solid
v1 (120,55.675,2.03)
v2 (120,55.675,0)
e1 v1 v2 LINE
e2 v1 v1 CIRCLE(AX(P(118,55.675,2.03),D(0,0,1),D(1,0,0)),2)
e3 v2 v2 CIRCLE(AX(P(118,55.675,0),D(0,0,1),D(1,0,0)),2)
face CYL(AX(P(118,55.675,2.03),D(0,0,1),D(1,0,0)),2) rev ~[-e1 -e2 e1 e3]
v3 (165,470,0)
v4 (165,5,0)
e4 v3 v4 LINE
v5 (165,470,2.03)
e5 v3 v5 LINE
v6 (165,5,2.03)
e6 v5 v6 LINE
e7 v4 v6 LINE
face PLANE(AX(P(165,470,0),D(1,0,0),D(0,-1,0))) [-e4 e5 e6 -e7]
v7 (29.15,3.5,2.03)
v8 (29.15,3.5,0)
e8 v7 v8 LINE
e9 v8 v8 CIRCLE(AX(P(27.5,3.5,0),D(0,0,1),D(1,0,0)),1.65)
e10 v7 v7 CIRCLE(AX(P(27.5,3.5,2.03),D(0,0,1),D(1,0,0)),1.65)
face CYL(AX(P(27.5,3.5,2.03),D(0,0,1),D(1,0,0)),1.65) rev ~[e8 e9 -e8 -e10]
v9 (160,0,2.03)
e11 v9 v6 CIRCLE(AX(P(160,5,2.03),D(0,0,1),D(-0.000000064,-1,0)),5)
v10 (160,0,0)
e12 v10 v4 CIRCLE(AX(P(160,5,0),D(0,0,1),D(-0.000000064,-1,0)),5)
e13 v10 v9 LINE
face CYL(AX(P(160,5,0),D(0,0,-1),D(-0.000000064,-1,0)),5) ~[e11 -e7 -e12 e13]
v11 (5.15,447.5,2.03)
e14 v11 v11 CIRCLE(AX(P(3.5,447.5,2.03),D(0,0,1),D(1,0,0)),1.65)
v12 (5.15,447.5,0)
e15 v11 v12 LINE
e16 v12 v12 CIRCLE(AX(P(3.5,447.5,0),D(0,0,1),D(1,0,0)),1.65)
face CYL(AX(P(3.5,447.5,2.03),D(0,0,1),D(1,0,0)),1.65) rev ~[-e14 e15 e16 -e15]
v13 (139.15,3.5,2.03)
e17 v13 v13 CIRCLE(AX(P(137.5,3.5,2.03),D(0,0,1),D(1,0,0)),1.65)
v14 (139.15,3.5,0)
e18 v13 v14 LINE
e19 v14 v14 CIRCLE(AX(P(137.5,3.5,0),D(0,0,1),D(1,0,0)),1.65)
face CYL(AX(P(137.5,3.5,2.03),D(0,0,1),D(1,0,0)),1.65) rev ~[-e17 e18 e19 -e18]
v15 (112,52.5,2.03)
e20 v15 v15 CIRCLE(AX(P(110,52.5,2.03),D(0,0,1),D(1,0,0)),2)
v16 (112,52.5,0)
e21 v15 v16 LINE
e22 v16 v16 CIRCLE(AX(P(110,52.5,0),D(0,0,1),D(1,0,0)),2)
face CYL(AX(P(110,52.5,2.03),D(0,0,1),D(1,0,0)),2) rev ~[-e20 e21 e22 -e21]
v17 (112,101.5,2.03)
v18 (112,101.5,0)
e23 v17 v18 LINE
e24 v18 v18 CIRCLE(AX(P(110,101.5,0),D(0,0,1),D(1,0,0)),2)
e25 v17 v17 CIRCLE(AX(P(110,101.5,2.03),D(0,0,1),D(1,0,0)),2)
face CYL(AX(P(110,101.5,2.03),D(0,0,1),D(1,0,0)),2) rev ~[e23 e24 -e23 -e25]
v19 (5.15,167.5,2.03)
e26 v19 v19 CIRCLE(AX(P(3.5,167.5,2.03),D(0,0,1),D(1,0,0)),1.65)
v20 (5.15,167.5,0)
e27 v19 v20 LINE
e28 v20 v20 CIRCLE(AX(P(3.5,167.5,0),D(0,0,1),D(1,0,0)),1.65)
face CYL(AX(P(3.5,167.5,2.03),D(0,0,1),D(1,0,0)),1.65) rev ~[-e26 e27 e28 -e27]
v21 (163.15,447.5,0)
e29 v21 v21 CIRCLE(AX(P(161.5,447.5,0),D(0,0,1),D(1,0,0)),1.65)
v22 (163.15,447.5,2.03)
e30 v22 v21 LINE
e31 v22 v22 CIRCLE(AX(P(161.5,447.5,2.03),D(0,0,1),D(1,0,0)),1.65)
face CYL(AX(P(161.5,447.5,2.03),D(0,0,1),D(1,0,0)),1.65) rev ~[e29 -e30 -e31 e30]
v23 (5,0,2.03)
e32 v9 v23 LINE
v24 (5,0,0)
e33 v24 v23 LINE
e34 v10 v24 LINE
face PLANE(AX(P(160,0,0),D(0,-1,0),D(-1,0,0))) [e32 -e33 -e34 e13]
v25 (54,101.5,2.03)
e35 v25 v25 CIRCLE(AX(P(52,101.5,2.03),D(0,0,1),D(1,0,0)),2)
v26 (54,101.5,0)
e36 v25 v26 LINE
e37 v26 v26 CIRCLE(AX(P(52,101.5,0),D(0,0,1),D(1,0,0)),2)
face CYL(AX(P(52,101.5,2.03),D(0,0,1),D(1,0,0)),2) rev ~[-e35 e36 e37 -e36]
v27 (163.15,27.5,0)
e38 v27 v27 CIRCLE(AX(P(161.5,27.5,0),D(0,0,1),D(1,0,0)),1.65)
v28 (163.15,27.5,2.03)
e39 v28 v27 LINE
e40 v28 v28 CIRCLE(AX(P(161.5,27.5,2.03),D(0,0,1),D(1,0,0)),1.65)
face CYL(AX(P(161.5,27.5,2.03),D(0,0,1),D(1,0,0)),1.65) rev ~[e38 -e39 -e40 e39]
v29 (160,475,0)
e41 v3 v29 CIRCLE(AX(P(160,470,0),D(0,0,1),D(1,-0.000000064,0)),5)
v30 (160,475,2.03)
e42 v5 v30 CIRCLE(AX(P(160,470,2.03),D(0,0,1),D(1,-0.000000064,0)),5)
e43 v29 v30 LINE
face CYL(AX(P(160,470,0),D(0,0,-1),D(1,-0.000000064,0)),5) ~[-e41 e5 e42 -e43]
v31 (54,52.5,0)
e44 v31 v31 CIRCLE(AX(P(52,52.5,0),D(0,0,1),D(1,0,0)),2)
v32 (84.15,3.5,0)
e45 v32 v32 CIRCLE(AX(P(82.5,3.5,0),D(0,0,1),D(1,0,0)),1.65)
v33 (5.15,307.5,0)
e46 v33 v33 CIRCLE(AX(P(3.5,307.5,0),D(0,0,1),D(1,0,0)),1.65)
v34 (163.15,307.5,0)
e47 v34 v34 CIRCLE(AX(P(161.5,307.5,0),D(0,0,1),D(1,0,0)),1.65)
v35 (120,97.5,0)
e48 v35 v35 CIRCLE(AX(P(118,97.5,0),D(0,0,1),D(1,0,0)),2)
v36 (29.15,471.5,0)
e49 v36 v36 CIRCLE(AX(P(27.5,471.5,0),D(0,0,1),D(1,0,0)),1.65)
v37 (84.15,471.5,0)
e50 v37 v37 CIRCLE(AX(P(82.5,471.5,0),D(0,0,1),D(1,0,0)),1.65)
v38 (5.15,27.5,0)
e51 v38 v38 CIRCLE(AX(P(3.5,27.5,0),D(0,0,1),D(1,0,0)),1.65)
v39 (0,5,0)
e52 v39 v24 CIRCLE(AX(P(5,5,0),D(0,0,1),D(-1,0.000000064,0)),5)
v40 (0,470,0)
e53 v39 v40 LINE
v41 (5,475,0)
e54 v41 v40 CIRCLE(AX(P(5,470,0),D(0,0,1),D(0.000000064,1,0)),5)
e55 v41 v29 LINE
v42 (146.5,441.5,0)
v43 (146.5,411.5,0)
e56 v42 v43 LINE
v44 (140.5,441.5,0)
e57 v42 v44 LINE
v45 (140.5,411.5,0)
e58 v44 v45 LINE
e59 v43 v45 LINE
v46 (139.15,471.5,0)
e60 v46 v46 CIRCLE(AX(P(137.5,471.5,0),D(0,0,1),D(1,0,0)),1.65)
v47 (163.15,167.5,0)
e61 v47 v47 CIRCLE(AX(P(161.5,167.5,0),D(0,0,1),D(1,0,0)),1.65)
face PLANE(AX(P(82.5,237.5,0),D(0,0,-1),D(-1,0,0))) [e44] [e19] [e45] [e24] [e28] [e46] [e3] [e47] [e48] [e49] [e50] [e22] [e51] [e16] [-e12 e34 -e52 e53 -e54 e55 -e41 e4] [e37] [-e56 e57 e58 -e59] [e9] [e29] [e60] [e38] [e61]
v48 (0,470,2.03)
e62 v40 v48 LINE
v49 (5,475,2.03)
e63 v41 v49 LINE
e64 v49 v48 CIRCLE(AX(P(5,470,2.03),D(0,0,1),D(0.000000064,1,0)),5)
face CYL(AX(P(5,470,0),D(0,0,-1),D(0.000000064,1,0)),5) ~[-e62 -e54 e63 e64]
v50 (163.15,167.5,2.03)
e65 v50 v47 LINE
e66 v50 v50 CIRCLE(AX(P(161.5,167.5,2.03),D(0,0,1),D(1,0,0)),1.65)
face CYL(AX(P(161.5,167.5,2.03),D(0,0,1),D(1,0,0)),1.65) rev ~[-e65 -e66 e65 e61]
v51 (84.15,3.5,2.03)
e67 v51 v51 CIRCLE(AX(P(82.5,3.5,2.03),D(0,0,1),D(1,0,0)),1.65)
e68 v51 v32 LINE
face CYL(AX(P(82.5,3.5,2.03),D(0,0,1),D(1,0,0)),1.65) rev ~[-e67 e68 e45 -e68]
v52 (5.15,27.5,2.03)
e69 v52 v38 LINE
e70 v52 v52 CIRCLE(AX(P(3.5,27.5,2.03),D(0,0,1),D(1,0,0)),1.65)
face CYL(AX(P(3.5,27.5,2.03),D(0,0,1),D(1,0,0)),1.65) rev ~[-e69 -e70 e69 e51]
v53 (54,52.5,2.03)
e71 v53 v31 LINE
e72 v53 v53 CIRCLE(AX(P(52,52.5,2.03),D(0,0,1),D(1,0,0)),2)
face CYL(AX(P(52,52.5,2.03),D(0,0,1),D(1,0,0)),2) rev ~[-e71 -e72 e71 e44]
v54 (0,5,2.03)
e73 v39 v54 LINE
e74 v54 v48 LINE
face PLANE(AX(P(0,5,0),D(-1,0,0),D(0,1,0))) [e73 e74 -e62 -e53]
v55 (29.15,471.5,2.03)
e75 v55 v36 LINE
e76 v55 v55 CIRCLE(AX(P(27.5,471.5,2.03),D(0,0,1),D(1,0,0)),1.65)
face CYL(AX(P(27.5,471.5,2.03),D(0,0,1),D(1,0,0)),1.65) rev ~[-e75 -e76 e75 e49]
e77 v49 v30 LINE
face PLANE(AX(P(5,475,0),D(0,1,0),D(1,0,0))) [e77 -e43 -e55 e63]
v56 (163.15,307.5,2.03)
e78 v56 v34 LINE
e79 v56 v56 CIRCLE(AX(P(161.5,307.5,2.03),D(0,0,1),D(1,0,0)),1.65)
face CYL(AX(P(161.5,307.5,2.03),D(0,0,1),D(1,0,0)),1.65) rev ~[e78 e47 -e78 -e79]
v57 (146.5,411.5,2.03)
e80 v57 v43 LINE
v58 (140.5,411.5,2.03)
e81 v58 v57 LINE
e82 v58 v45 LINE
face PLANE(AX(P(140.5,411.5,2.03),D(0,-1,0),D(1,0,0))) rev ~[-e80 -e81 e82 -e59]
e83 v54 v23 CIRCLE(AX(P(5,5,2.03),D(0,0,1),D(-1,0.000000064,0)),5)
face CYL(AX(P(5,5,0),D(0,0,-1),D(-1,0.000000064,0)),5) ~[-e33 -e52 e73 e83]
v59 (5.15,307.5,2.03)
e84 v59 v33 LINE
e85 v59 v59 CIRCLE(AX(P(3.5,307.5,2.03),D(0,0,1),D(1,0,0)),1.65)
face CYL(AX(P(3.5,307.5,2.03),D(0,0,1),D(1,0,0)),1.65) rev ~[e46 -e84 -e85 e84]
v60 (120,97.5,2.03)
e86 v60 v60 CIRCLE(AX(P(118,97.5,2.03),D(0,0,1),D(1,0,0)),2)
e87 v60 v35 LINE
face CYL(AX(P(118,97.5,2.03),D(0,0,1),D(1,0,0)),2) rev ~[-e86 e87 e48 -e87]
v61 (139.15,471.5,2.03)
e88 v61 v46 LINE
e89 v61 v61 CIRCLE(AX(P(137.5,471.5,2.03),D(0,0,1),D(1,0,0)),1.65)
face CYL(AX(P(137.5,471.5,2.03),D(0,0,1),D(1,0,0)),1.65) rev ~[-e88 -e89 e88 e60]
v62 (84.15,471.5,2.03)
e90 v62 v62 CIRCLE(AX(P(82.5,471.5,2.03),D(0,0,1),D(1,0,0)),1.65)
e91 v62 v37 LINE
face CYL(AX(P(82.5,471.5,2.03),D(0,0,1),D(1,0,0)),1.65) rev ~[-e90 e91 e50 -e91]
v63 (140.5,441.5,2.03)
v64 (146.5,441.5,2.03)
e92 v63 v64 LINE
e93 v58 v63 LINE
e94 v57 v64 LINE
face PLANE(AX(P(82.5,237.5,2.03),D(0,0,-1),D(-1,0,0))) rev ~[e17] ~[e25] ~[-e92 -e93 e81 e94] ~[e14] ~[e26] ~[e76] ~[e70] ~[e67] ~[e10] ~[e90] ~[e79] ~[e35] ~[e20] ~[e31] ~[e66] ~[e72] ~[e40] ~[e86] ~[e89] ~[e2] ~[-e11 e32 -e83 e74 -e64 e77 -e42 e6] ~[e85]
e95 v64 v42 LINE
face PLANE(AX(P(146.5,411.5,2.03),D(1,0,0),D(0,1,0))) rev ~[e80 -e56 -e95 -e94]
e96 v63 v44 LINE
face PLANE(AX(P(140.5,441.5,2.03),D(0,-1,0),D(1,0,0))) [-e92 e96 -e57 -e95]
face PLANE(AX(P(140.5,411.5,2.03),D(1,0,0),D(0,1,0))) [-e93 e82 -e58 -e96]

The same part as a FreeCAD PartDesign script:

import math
import FreeCAD as App
import Part
import Sketcher


def add_polygon(sketch, points):
    """Adds a closed chain of lines whose ends are joined by coincident constraints."""
    first, n = sketch.GeometryCount, len(points)
    for a, b in zip(points, points[1:] + points[:1]):
        sketch.addGeometry(Part.LineSegment(App.Vector(*a, 0), App.Vector(*b, 0)), False)
    for i in range(n):
        sketch.addConstraint(Sketcher.Constraint("Coincident", first + i, 2, first + (i + 1) % n, 1))

doc = App.newDocument("Part")
body = doc.addObject("PartDesign::Body", "Body")

sketch1 = doc.addObject("Sketcher::SketchObject", "Sketch")
body.addObject(sketch1)
sketch1.AttachmentSupport = (doc.XY_Plane, [""])
sketch1.MapMode = "FlatFace"
sketch1.addGeometry(Part.LineSegment(App.Vector(160, 475, 0), App.Vector(5, 475, 0)), False)
sketch1.addGeometry(Part.ArcOfCircle(Part.Circle(App.Vector(5, 470, 0), App.Vector(0, 0, 1), 5), math.radians(89.999996), math.radians(180.000004)), False)
sketch1.addGeometry(Part.LineSegment(App.Vector(0, 470, 0), App.Vector(0, 5, 0)), False)
sketch1.addGeometry(Part.ArcOfCircle(Part.Circle(App.Vector(5, 5, 0), App.Vector(0, 0, 1), 5), math.radians(179.999996), math.radians(270.000004)), False)
sketch1.addGeometry(Part.LineSegment(App.Vector(5, 0, 0), App.Vector(160, 0, 0)), False)
sketch1.addGeometry(Part.ArcOfCircle(Part.Circle(App.Vector(160, 5, 0), App.Vector(0, 0, 1), 5), math.radians(-90.000004), math.radians(0.000004)), False)
sketch1.addGeometry(Part.LineSegment(App.Vector(165, 5, 0), App.Vector(165, 470, 0)), False)
sketch1.addGeometry(Part.ArcOfCircle(Part.Circle(App.Vector(160, 470, 0), App.Vector(0, 0, 1), 5), math.radians(-0.000004), math.radians(90.000004)), False)
sketch1.addConstraint(Sketcher.Constraint("Tangent", 0, 2, 1, 1))
sketch1.addConstraint(Sketcher.Constraint("Tangent", 1, 2, 2, 1))
sketch1.addConstraint(Sketcher.Constraint("Tangent", 2, 2, 3, 1))
sketch1.addConstraint(Sketcher.Constraint("Tangent", 3, 2, 4, 1))
sketch1.addConstraint(Sketcher.Constraint("Tangent", 4, 2, 5, 1))
sketch1.addConstraint(Sketcher.Constraint("Tangent", 5, 2, 6, 1))
sketch1.addConstraint(Sketcher.Constraint("Tangent", 6, 2, 7, 1))
sketch1.addConstraint(Sketcher.Constraint("Tangent", 7, 2, 0, 1))
sketch1.addConstraint(Sketcher.Constraint("Horizontal", 0))
sketch1.addConstraint(Sketcher.Constraint("Vertical", 2))
sketch1.addConstraint(Sketcher.Constraint("Horizontal", 4))
sketch1.addConstraint(Sketcher.Constraint("Vertical", 6))
sketch1.addConstraint(Sketcher.Constraint("Equal", 1, 3))
sketch1.addConstraint(Sketcher.Constraint("Equal", 3, 5))
sketch1.addConstraint(Sketcher.Constraint("Equal", 5, 7))
sketch1.addConstraint(Sketcher.Constraint("PointOnObject", 1, 2, -2))
sketch1.addConstraint(Sketcher.Constraint("PointOnObject", 3, 2, -1))
sketch1.addConstraint(Sketcher.Constraint("Radius", 1, 5.0))
sketch1.addConstraint(Sketcher.Constraint("DistanceX", 0, 2, 0, 1, 155.0))
sketch1.addConstraint(Sketcher.Constraint("DistanceY", 2, 2, 2, 1, 465.0))
pad1 = doc.addObject("PartDesign::Pad", "Pad")
body.addObject(pad1)
pad1.Profile = sketch1
pad1.Length = 2.03

sketch2 = doc.addObject("Sketcher::SketchObject", "Sketch001")
body.addObject(sketch2)
sketch2.AttachmentSupport = (doc.XY_Plane, [""])
sketch2.MapMode = "FlatFace"
sketch2.AttachmentOffset = App.Placement(App.Vector(0, 0, 2.03), App.Rotation())
sketch2.addGeometry(Part.Circle(App.Vector(137.5, 3.5, 0), App.Vector(0, 0, 1), 1.65), False)
sketch2.addGeometry(Part.Circle(App.Vector(27.5, 3.5, 0), App.Vector(0, 0, 1), 1.65), False)
sketch2.addGeometry(Part.Circle(App.Vector(82.5, 3.5, 0), App.Vector(0, 0, 1), 1.65), False)
sketch2.addGeometry(Part.Circle(App.Vector(3.5, 27.5, 0), App.Vector(0, 0, 1), 1.65), False)
sketch2.addGeometry(Part.Circle(App.Vector(161.5, 27.5, 0), App.Vector(0, 0, 1), 1.65), False)
sketch2.addGeometry(Part.Circle(App.Vector(161.5, 167.5, 0), App.Vector(0, 0, 1), 1.65), False)
sketch2.addGeometry(Part.Circle(App.Vector(161.5, 307.5, 0), App.Vector(0, 0, 1), 1.65), False)
sketch2.addGeometry(Part.Circle(App.Vector(3.5, 307.5, 0), App.Vector(0, 0, 1), 1.65), False)
sketch2.addGeometry(Part.Circle(App.Vector(3.5, 167.5, 0), App.Vector(0, 0, 1), 1.65), False)
sketch2.addGeometry(Part.Circle(App.Vector(3.5, 447.5, 0), App.Vector(0, 0, 1), 1.65), False)
sketch2.addGeometry(Part.Circle(App.Vector(27.5, 471.5, 0), App.Vector(0, 0, 1), 1.65), False)
sketch2.addGeometry(Part.Circle(App.Vector(82.5, 471.5, 0), App.Vector(0, 0, 1), 1.65), False)
sketch2.addGeometry(Part.Circle(App.Vector(137.5, 471.5, 0), App.Vector(0, 0, 1), 1.65), False)
sketch2.addGeometry(Part.Circle(App.Vector(161.5, 447.5, 0), App.Vector(0, 0, 1), 1.65), False)
sketch2.addConstraint(Sketcher.Constraint("Equal", 0, 1))
sketch2.addConstraint(Sketcher.Constraint("Equal", 1, 2))
sketch2.addConstraint(Sketcher.Constraint("Equal", 2, 3))
sketch2.addConstraint(Sketcher.Constraint("Equal", 3, 4))
sketch2.addConstraint(Sketcher.Constraint("Equal", 4, 5))
sketch2.addConstraint(Sketcher.Constraint("Equal", 5, 6))
sketch2.addConstraint(Sketcher.Constraint("Equal", 6, 7))
sketch2.addConstraint(Sketcher.Constraint("Equal", 7, 8))
sketch2.addConstraint(Sketcher.Constraint("Equal", 8, 9))
sketch2.addConstraint(Sketcher.Constraint("Equal", 9, 10))
sketch2.addConstraint(Sketcher.Constraint("Equal", 10, 11))
sketch2.addConstraint(Sketcher.Constraint("Equal", 11, 12))
sketch2.addConstraint(Sketcher.Constraint("Equal", 12, 13))
sketch2.addConstraint(Sketcher.Constraint("Horizontal", 0, 3, 1, 3))
sketch2.addConstraint(Sketcher.Constraint("Horizontal", 1, 3, 2, 3))
sketch2.addConstraint(Sketcher.Constraint("Horizontal", 3, 3, 4, 3))
sketch2.addConstraint(Sketcher.Constraint("Horizontal", 6, 3, 7, 3))
sketch2.addConstraint(Sketcher.Constraint("Horizontal", 5, 3, 8, 3))
sketch2.addConstraint(Sketcher.Constraint("Horizontal", 10, 3, 11, 3))
sketch2.addConstraint(Sketcher.Constraint("Horizontal", 11, 3, 12, 3))
sketch2.addConstraint(Sketcher.Constraint("Horizontal", 9, 3, 13, 3))
sketch2.addConstraint(Sketcher.Constraint("Vertical", 4, 3, 5, 3))
sketch2.addConstraint(Sketcher.Constraint("Vertical", 5, 3, 6, 3))
sketch2.addConstraint(Sketcher.Constraint("Vertical", 3, 3, 7, 3))
sketch2.addConstraint(Sketcher.Constraint("Vertical", 7, 3, 8, 3))
sketch2.addConstraint(Sketcher.Constraint("Vertical", 8, 3, 9, 3))
sketch2.addConstraint(Sketcher.Constraint("Vertical", 1, 3, 10, 3))
sketch2.addConstraint(Sketcher.Constraint("Vertical", 2, 3, 11, 3))
sketch2.addConstraint(Sketcher.Constraint("Vertical", 0, 3, 12, 3))
sketch2.addConstraint(Sketcher.Constraint("Vertical", 6, 3, 13, 3))
sketch2.addConstraint(Sketcher.Constraint("Diameter", 0, 3.3))
sketch2.addConstraint(Sketcher.Constraint("DistanceX", 1, 3, 0, 3, 110.0))
sketch2.addConstraint(Sketcher.Constraint("DistanceX", 2, 3, 0, 3, 55.0))
sketch2.addConstraint(Sketcher.Constraint("DistanceX", 3, 3, 1, 3, 24.0))
sketch2.addConstraint(Sketcher.Constraint("DistanceY", 1, 3, 3, 3, 24.0))
sketch2.addConstraint(Sketcher.Constraint("DistanceX", 0, 3, 4, 3, 24.0))
sketch2.addConstraint(Sketcher.Constraint("DistanceY", 4, 3, 5, 3, 140.0))
sketch2.addConstraint(Sketcher.Constraint("DistanceY", 5, 3, 6, 3, 140.0))
sketch2.addConstraint(Sketcher.Constraint("DistanceY", 7, 3, 9, 3, 140.0))
sketch2.addConstraint(Sketcher.Constraint("DistanceY", 9, 3, 10, 3, 24.0))
sketch2.addConstraint(Sketcher.Constraint("DistanceX", -1, 1, 0, 3, 137.5))
sketch2.addConstraint(Sketcher.Constraint("DistanceY", -1, 1, 0, 3, 3.5))
pocket1 = doc.addObject("PartDesign::Pocket", "Pocket")
body.addObject(pocket1)
pocket1.Profile = sketch2
pocket1.Length = 5

sketch3 = doc.addObject("Sketcher::SketchObject", "Sketch002")
body.addObject(sketch3)
sketch3.AttachmentSupport = (doc.XY_Plane, [""])
sketch3.MapMode = "FlatFace"
sketch3.AttachmentOffset = App.Placement(App.Vector(0, 0, 2.03), App.Rotation())
add_polygon(sketch3, [(140.5, 441.5), (140.5, 411.5), (146.5, 411.5), (146.5, 441.5)])
sketch3.addConstraint(Sketcher.Constraint("Vertical", 0))
sketch3.addConstraint(Sketcher.Constraint("Horizontal", 1))
sketch3.addConstraint(Sketcher.Constraint("Vertical", 2))
sketch3.addConstraint(Sketcher.Constraint("Horizontal", 3))
sketch3.addConstraint(Sketcher.Constraint("DistanceX", 1, 1, 1, 2, 6.0))
sketch3.addConstraint(Sketcher.Constraint("DistanceY", 0, 2, 0, 1, 30.0))
sketch3.addConstraint(Sketcher.Constraint("DistanceX", -1, 1, 0, 2, 140.5))
sketch3.addConstraint(Sketcher.Constraint("DistanceY", -1, 1, 0, 2, 411.5))
pocket2 = doc.addObject("PartDesign::Pocket", "Pocket001")
body.addObject(pocket2)
pocket2.Profile = sketch3
pocket2.Length = 5

sketch4 = doc.addObject("Sketcher::SketchObject", "Sketch003")
body.addObject(sketch4)
sketch4.AttachmentSupport = (doc.XY_Plane, [""])
sketch4.MapMode = "FlatFace"
sketch4.AttachmentOffset = App.Placement(App.Vector(0, 0, 2.03), App.Rotation())
sketch4.addGeometry(Part.Circle(App.Vector(118, 97.5, 0), App.Vector(0, 0, 1), 2), False)
sketch4.addGeometry(Part.Circle(App.Vector(118, 55.675, 0), App.Vector(0, 0, 1), 2), False)
sketch4.addGeometry(Part.Circle(App.Vector(52, 52.5, 0), App.Vector(0, 0, 1), 2), False)
sketch4.addGeometry(Part.Circle(App.Vector(52, 101.5, 0), App.Vector(0, 0, 1), 2), False)
sketch4.addGeometry(Part.Circle(App.Vector(110, 101.5, 0), App.Vector(0, 0, 1), 2), False)
sketch4.addGeometry(Part.Circle(App.Vector(110, 52.5, 0), App.Vector(0, 0, 1), 2), False)
sketch4.addConstraint(Sketcher.Constraint("Equal", 0, 1))
sketch4.addConstraint(Sketcher.Constraint("Equal", 1, 2))
sketch4.addConstraint(Sketcher.Constraint("Equal", 2, 3))
sketch4.addConstraint(Sketcher.Constraint("Equal", 3, 4))
sketch4.addConstraint(Sketcher.Constraint("Equal", 4, 5))
sketch4.addConstraint(Sketcher.Constraint("Horizontal", 3, 3, 4, 3))
sketch4.addConstraint(Sketcher.Constraint("Horizontal", 2, 3, 5, 3))
sketch4.addConstraint(Sketcher.Constraint("Vertical", 0, 3, 1, 3))
sketch4.addConstraint(Sketcher.Constraint("Vertical", 2, 3, 3, 3))
sketch4.addConstraint(Sketcher.Constraint("Vertical", 4, 3, 5, 3))
sketch4.addConstraint(Sketcher.Constraint("Diameter", 0, 4.0))
sketch4.addConstraint(Sketcher.Constraint("DistanceX", -1, 1, 0, 3, 118.0))
sketch4.addConstraint(Sketcher.Constraint("DistanceX", -1, 1, 2, 3, 52.0))
sketch4.addConstraint(Sketcher.Constraint("DistanceX", -1, 1, 4, 3, 110.0))
sketch4.addConstraint(Sketcher.Constraint("DistanceY", 2, 3, 0, 3, 45.0))
sketch4.addConstraint(Sketcher.Constraint("DistanceY", 2, 3, 3, 3, 49.0))
sketch4.addConstraint(Sketcher.Constraint("DistanceY", -1, 1, 0, 3, 97.5))
sketch4.addConstraint(Sketcher.Constraint("DistanceY", -1, 1, 1, 3, 55.675))
pocket3 = doc.addObject("PartDesign::Pocket", "Pocket002")
body.addObject(pocket3)
pocket3.Profile = sketch4
pocket3.Length = 5

doc.recompute()
